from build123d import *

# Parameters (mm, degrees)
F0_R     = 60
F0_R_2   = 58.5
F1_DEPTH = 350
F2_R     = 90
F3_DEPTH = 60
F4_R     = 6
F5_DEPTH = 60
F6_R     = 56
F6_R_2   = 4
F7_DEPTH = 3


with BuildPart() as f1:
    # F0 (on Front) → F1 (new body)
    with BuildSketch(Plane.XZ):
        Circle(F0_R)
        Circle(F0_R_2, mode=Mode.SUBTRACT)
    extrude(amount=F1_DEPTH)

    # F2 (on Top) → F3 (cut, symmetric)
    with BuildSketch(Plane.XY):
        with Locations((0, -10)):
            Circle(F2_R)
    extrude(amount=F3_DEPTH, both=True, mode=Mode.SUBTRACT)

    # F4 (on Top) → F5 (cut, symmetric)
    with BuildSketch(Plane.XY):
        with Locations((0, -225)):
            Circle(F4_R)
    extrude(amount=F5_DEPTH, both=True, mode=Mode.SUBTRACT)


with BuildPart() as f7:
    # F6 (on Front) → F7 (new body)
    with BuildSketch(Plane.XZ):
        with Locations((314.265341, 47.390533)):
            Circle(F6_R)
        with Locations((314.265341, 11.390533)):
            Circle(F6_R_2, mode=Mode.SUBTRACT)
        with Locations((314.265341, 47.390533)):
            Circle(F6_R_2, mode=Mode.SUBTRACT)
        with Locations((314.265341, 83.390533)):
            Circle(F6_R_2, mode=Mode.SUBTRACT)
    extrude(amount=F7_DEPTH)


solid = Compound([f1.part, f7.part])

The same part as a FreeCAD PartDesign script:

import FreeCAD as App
import Part
import Sketcher

doc = App.newDocument("Part")
body = doc.addObject("PartDesign::Body", "Body")

# Sketch on XZ plane
sketch1 = body.newObject("Sketcher::SketchObject", "Sketch")
sketch1.AttachmentSupport = (doc.getObject("XZ_Plane"), [""])
sketch1.MapMode = "FlatFace"
sketch1.addGeometry([
    Part.Circle(App.Vector(0, 0, 0), App.Vector(0, 0, 1), 60),
    Part.Circle(App.Vector(0, 0, 0), App.Vector(0, 0, 1), 58),
], False)
sketch1.addConstraint([
    Sketcher.Constraint("Coincident", 0, 3, -1, 1),
    Sketcher.Constraint("Coincident", 1, 3, -1, 1),
    Sketcher.Constraint("Diameter", 0, 120.0),
    Sketcher.Constraint("Diameter", 1, 117.0),
])
pad1 = body.newObject("PartDesign::Pad", "Pad")
pad1.Profile = sketch1
pad1.Length = 350

# Sketch on XY plane
sketch2 = body.newObject("Sketcher::SketchObject", "Sketch001")
sketch2.AttachmentSupport = (doc.getObject("XY_Plane"), [""])
sketch2.MapMode = "FlatFace"
sketch2.addGeometry(Part.Circle(App.Vector(0, -10, 0), App.Vector(0, 0, 1), 90), False)
sketch2.addConstraint([
    Sketcher.Constraint("PointOnObject", 0, 3, -2),
    Sketcher.Constraint("Diameter", 0, 180.0),
    Sketcher.Constraint("DistanceY", 0, 3, -1, 1, 10.0),
])
pocket1 = body.newObject("PartDesign::Pocket", "Pocket")
pocket1.Profile = sketch2
pocket1.Length = 120
pocket1.Midplane = True

# Sketch on XY plane
sketch3 = body.newObject("Sketcher::SketchObject", "Sketch002")
sketch3.AttachmentSupport = (doc.getObject("XY_Plane"), [""])
sketch3.MapMode = "FlatFace"
sketch3.addGeometry(Part.Circle(App.Vector(0, -225, 0), App.Vector(0, 0, 1), 6), False)
sketch3.addConstraint([
    Sketcher.Constraint("PointOnObject", 0, 3, -2),
    Sketcher.Constraint("Diameter", 0, 12.0),
    Sketcher.Constraint("DistanceY", 0, 3, -1, 1, 225.0),
])
pocket2 = body.newObject("PartDesign::Pocket", "Pocket001")
pocket2.Profile = sketch3
pocket2.Length = 120
pocket2.Midplane = True
body2 = doc.addObject("PartDesign::Body", "Body001")

# Sketch on XZ plane
sketch4 = body2.newObject("Sketcher::SketchObject", "Sketch003")
sketch4.AttachmentSupport = (doc.getObject("XZ_Plane001"), [""])
sketch4.MapMode = "FlatFace"
sketch4.addGeometry([
    Part.Circle(App.Vector(314.3, 47.4, 0), App.Vector(0, 0, 1), 56),
    Part.Circle(App.Vector(314.3, 11.4, 0), App.Vector(0, 0, 1), 4),
    Part.Circle(App.Vector(314.3, 47.4, 0), App.Vector(0, 0, 1), 4),
    Part.Circle(App.Vector(314.3, 83.4, 0), App.Vector(0, 0, 1), 4),
], False)
sketch4.addConstraint([
    Sketcher.Constraint("Coincident", 2, 3, 0, 3),
    Sketcher.Constraint("Equal", 1, 2),
    Sketcher.Constraint("Equal", 2, 3),
    Sketcher.Constraint("Vertical", 0, 3, 1, 3),
    Sketcher.Constraint("Vertical", 2, 3, 3, 3),
    Sketcher.Constraint("Diameter", 0, 112.0),
    Sketcher.Constraint("Diameter", 1, 8.0),
    Sketcher.Constraint("DistanceY", 1, 3, 0, 3, 36.0),
    Sketcher.Constraint("DistanceY", 0, 3, 3, 3, 36.0),
    Sketcher.Constraint("DistanceX", -1, 1, 0, 3, 314.265341),
    Sketcher.Constraint("DistanceY", -1, 1, 0, 3, 47.390533),
])
pad2 = body2.newObject("PartDesign::Pad", "Pad001")
pad2.Profile = sketch4
pad2.Length = 3

doc.recompute()
